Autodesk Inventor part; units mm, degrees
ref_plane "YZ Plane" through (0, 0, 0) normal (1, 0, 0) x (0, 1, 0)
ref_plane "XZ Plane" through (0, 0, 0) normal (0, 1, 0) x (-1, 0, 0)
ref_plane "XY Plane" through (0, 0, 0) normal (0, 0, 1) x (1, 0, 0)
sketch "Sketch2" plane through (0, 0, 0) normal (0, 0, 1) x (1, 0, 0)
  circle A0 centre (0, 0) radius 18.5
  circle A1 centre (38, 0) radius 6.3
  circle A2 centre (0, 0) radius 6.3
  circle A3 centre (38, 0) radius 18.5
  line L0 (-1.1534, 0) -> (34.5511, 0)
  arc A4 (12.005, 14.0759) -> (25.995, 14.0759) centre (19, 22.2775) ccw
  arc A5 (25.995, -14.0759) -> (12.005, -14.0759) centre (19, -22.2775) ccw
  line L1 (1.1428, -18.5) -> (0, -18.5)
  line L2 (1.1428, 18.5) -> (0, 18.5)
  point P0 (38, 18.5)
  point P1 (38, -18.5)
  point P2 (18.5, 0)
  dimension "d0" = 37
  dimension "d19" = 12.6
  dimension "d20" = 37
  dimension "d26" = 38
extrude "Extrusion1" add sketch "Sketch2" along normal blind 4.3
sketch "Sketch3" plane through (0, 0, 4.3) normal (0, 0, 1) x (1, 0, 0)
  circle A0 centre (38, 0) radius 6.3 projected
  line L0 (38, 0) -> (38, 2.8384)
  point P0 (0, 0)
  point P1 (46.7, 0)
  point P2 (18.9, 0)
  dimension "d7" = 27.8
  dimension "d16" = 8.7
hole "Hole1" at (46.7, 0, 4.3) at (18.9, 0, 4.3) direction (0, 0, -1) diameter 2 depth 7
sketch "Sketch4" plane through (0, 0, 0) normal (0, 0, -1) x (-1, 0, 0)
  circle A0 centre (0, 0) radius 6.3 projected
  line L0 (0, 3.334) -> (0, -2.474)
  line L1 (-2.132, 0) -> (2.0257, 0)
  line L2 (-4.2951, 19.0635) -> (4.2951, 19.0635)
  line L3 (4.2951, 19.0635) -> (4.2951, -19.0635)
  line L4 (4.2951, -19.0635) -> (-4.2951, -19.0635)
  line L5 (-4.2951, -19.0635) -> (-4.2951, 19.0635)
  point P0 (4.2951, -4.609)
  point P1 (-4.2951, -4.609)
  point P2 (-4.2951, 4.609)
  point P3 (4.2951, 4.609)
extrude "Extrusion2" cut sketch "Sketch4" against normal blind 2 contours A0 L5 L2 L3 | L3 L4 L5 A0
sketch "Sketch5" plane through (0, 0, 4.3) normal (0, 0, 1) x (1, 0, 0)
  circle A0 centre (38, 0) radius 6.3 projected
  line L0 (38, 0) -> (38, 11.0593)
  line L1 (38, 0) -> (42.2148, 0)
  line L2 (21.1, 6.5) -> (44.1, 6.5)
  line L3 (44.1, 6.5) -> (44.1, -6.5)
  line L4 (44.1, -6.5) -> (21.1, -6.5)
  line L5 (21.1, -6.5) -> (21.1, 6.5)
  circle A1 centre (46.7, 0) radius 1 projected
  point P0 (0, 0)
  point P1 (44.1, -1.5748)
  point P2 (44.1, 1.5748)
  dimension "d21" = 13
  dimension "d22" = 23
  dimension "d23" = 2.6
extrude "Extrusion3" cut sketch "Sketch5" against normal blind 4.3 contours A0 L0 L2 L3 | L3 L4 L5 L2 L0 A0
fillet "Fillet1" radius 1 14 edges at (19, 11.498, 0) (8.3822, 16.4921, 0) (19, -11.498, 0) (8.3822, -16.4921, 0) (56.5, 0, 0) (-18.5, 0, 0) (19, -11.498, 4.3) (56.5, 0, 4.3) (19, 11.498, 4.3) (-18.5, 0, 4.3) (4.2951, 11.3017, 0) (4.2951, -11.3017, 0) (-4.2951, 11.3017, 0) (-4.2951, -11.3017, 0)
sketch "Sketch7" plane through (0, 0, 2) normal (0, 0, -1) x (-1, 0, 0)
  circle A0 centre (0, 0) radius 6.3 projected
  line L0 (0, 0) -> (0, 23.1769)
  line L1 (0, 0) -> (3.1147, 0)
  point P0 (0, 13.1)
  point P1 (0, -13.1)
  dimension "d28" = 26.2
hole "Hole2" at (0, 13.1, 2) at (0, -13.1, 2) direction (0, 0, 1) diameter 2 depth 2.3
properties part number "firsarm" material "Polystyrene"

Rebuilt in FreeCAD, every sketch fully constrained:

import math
import FreeCAD as App
import Part
import Sketcher
Q = App.Units.Quantity


def edges_at(feature, points):
    """Names of the edges that pass closest to the given points."""
    edges = feature.Shape.Edges
    near = lambda p: min(range(len(edges)), key=lambda i: edges[i].distToShape(Part.Vertex(*p))[0])
    return sorted({f"Edge{near(p) + 1}" for p in points})

doc = App.newDocument("Part")
body = doc.addObject("PartDesign::Body", "Body")

sketch1 = body.newObject("Sketcher::SketchObject", "Sketch")
sketch1.AttachmentSupport = (doc.getObject("XY_Plane"), [""])
sketch1.MapMode = "FlatFace"
sketch1.addGeometry([
    Part.ArcOfCircle(Part.Circle(App.Vector(19, -22.2775, 0), App.Vector(0, 0, 1), 10.779437), math.radians(49.539723), math.radians(130.460277)),
    Part.ArcOfCircle(Part.Circle(App.Vector(38, 0, 0), App.Vector(0, 0, 1), 18.5), math.radians(-130.460072), math.radians(130.460072)),
    Part.ArcOfCircle(Part.Circle(App.Vector(19, 22.2775, 0), App.Vector(0, 0, 1), 10.779437), math.radians(-130.460277), math.radians(-49.539723)),
    Part.ArcOfCircle(Part.Circle(App.Vector(0, 0, 0), App.Vector(0, 0, 1), 18.5), math.radians(49.539928), math.radians(310.460072)),
    Part.Circle(App.Vector(0, 0, 0), App.Vector(0, 0, 1), 6.3),
    Part.Circle(App.Vector(38, 0, 0), App.Vector(0, 0, 1), 6.3),
], False)
sketch1.addConstraint([
    Sketcher.Constraint("Tangent", 0, 1, 1, 1),
    Sketcher.Constraint("Tangent", 1, 2, 2, 2),
    Sketcher.Constraint("Tangent", 2, 1, 3, 1),
    Sketcher.Constraint("Tangent", 3, 2, 0, 2),
    Sketcher.Constraint("Coincident", 3, 3, -1, 1),
    Sketcher.Constraint("Coincident", 4, 3, -1, 1),
    Sketcher.Constraint("Coincident", 5, 3, 1, 3),
    Sketcher.Constraint("Equal", 0, 2),
    Sketcher.Constraint("Equal", 1, 3),
    Sketcher.Constraint("Equal", 4, 5),
    Sketcher.Constraint("PointOnObject", 1, 3, -1),
    Sketcher.Constraint("Diameter", 4, Q("12.6 mm")),
    Sketcher.Constraint("Radius", 1, Q("18.5 mm")),
    Sketcher.Constraint("DistanceX", -1, 1, 1, 3, Q("38 mm")),
    Sketcher.Constraint("Radius", 0, Q("10.7794 mm")),
])
pad1 = body.newObject("PartDesign::Pad", "Pad")
pad1.Profile = sketch1
pad1.Length = 4.3

sketch2 = body.newObject("Sketcher::SketchObject", "Sketch001")
sketch2.AttachmentSupport = (doc.getObject("XY_Plane"), [""])
sketch2.MapMode = "FlatFace"
sketch2.AttachmentOffset = App.Placement(App.Vector(0, 0, 4.3), App.Rotation())
sketch2.addGeometry([
    Part.Circle(App.Vector(46.7, 0, 0), App.Vector(0, 0, 1), 1),
    Part.Circle(App.Vector(18.9, 0, 0), App.Vector(0, 0, 1), 1),
], False)
sketch2.addConstraint([
    Sketcher.Constraint("Equal", 0, 1),
    Sketcher.Constraint("PointOnObject", 0, 3, -1),
    Sketcher.Constraint("PointOnObject", 1, 3, -1),
    Sketcher.Constraint("Diameter", 0, Q("2 mm")),
    Sketcher.Constraint("DistanceX", -1, 1, 0, 3, Q("46.7 mm")),
    Sketcher.Constraint("DistanceX", -1, 1, 1, 3, Q("18.9 mm")),
])
doc.recompute()
hole = body.newObject("PartDesign::Hole", "Hole")
hole.Profile = sketch2
hole.ThreadType = "None"
hole.Diameter = 2
hole.DepthType = "Dimension"
hole.Depth = 7
hole.DrillPoint = "Flat"

sketch3 = body.newObject("Sketcher::SketchObject", "Sketch002")
sketch3.AttachmentSupport = (doc.getObject("XY_Plane"), [""])
sketch3.MapMode = "FlatFace"
sketch3.addGeometry([
    Part.ArcOfCircle(Part.Circle(App.Vector(0, 0, 0), App.Vector(0, 0, 1), 6.3), math.radians(47.018522), math.radians(132.981478)),
    Part.LineSegment(App.Vector(-4.2951, 4.608917, 0), App.Vector(-4.2951, 19.0635, 0)),
    Part.LineSegment(App.Vector(-4.2951, 19.0635, 0), App.Vector(4.2951, 19.0635, 0)),
    Part.LineSegment(App.Vector(4.2951, 19.0635, 0), App.Vector(4.2951, 4.608917, 0)),
    Part.LineSegment(App.Vector(-4.2951, -19.0635, 0), App.Vector(-4.2951, -4.608917, 0)),
    Part.ArcOfCircle(Part.Circle(App.Vector(0, 0, 0), App.Vector(0, 0, 1), 6.3), math.radians(-132.981478), math.radians(-47.018522)),
    Part.LineSegment(App.Vector(4.2951, -4.608917, 0), App.Vector(4.2951, -19.0635, 0)),
    Part.LineSegment(App.Vector(4.2951, -19.0635, 0), App.Vector(-4.2951, -19.0635, 0)),
], False)
sketch3.addConstraint([
    Sketcher.Constraint("Coincident", 0, 2, 1, 1),
    Sketcher.Constraint("Coincident", 1, 2, 2, 1),
    Sketcher.Constraint("Coincident", 2, 2, 3, 1),
    Sketcher.Constraint("Coincident", 3, 2, 0, 1),
    Sketcher.Constraint("Coincident", 4, 2, 5, 1),
    Sketcher.Constraint("Coincident", 5, 2, 6, 1),
    Sketcher.Constraint("Coincident", 6, 2, 7, 1),
    Sketcher.Constraint("Coincident", 7, 2, 4, 1),
    Sketcher.Constraint("Vertical", 1),
    Sketcher.Constraint("Horizontal", 2),
    Sketcher.Constraint("Vertical", 3),
    Sketcher.Constraint("Vertical", 4),
    Sketcher.Constraint("Vertical", 6),
    Sketcher.Constraint("Horizontal", 7),
    Sketcher.Constraint("Coincident", 0, 3, -1, 1),
    Sketcher.Constraint("Coincident", 5, 3, -1, 1),
    Sketcher.Constraint("Equal", 0, 5),
    Sketcher.Constraint("Symmetric", 1, 2, 6, 2, -1, 1),
    Sketcher.Constraint("Horizontal", 0, 2, 3, 2),
    Sketcher.Constraint("Horizontal", 4, 2, 5, 2),
    Sketcher.Constraint("Radius", 0, Q("6.3 mm")),
    Sketcher.Constraint("DistanceX", 2, 1, 2, 2, Q("8.5902 mm")),
    Sketcher.Constraint("DistanceY", 1, 1, 1, 2, Q("14.4546 mm")),
])
pocket1 = body.newObject("PartDesign::Pocket", "Pocket")
pocket1.Profile = sketch3
pocket1.Length = 2
pocket1.Reversed = True

sketch4 = body.newObject("Sketcher::SketchObject", "Sketch003")
sketch4.AttachmentSupport = (doc.getObject("XY_Plane"), [""])
sketch4.MapMode = "FlatFace"
sketch4.AttachmentOffset = App.Placement(App.Vector(0, 0, 4.3), App.Rotation())
sketch4.addGeometry([
    Part.LineSegment(App.Vector(44.1, 1.574802, 0), App.Vector(44.1, 6.5, 0)),
    Part.LineSegment(App.Vector(44.1, 6.5, 0), App.Vector(21.1, 6.5, 0)),
    Part.LineSegment(App.Vector(21.1, 6.5, 0), App.Vector(21.1, -6.5, 0)),
    Part.LineSegment(App.Vector(21.1, -6.5, 0), App.Vector(44.1, -6.5, 0)),
    Part.LineSegment(App.Vector(44.1, -6.5, 0), App.Vector(44.1, -1.574802, 0)),
    Part.ArcOfCircle(Part.Circle(App.Vector(38, 0, 0), App.Vector(0, 0, 1), 6.3), math.radians(14.475648), math.radians(345.524352)),
], False)
sketch4.addConstraint([
    Sketcher.Constraint("Coincident", 0, 2, 1, 1),
    Sketcher.Constraint("Coincident", 1, 2, 2, 1),
    Sketcher.Constraint("Coincident", 2, 2, 3, 1),
    Sketcher.Constraint("Coincident", 3, 2, 4, 1),
    Sketcher.Constraint("Coincident", 4, 2, 5, 2),
    Sketcher.Constraint("Coincident", 5, 1, 0, 1),
    Sketcher.Constraint("Vertical", 0),
    Sketcher.Constraint("Horizontal", 1),
    Sketcher.Constraint("Vertical", 2),
    Sketcher.Constraint("Horizontal", 3),
    Sketcher.Constraint("Vertical", 4),
    Sketcher.Constraint("Symmetric", 0, 2, 3, 2, -1),
    Sketcher.Constraint("PointOnObject", 5, 3, -1),
    Sketcher.Constraint("DistanceX", 1, 2, 1, 1, Q("23 mm")),
    Sketcher.Constraint("DistanceY", 2, 2, 2, 1, Q("13 mm")),
    Sketcher.Constraint("Radius", 5, Q("6.3 mm")),
    Sketcher.Constraint("DistanceX", -1, 1, 5, 3, Q("38 mm")),
    Sketcher.Constraint("DistanceX", -1, 1, 0, 2, Q("44.1 mm")),
])
pocket2 = body.newObject("PartDesign::Pocket", "Pocket001")
pocket2.Profile = sketch4
pocket2.Length = 4.3
doc.recompute()

fillet = body.newObject("PartDesign::Fillet", "Fillet")
fillet.Base = (pocket2, edges_at(pocket2, [
    (19, 11.498, 0),
    (8.382, 16.492, 0),
    (19, -11.498, 0),
    (8.382, -16.492, 0),
    (56.5, 0, 0),
    (-18.5, 0, 0),
    (19, -11.498, 4.3),
    (56.5, 0, 4.3),
    (19, 11.498, 4.3),
    (-18.5, 0, 4.3),
    (4.295, 11.302, 0),
    (4.295, -11.302, 0),
    (-4.295, 11.302, 0),
    (-4.295, -11.302, 0),
]))
fillet.Radius = 1

sketch5 = body.newObject("Sketcher::SketchObject", "Sketch004")
sketch5.AttachmentSupport = (doc.getObject("XY_Plane"), [""])
sketch5.MapMode = "FlatFace"
sketch5.AttachmentOffset = App.Placement(App.Vector(0, 0, 2), App.Rotation())
sketch5.addGeometry([
    Part.Circle(App.Vector(0, 13.1, 0), App.Vector(0, 0, 1), 1),
    Part.Circle(App.Vector(0, -13.1, 0), App.Vector(0, 0, 1), 1),
], False)
sketch5.addConstraint([
    Sketcher.Constraint("Equal", 0, 1),
    Sketcher.Constraint("Symmetric", 0, 3, 1, 3, -1, 1),
    Sketcher.Constraint("PointOnObject", 0, 3, -2),
    Sketcher.Constraint("Diameter", 0, Q("2 mm")),
    Sketcher.Constraint("DistanceY", -1, 1, 0, 3, Q("13.1 mm")),
])
doc.recompute()
hole2 = body.newObject("PartDesign::Hole", "Hole001")
hole2.Profile = sketch5
hole2.ThreadType = "None"
hole2.Diameter = 2
hole2.DepthType = "Dimension"
hole2.Depth = 2.3
hole2.DrillPoint = "Flat"
hole2.Reversed = True

doc.recompute()
